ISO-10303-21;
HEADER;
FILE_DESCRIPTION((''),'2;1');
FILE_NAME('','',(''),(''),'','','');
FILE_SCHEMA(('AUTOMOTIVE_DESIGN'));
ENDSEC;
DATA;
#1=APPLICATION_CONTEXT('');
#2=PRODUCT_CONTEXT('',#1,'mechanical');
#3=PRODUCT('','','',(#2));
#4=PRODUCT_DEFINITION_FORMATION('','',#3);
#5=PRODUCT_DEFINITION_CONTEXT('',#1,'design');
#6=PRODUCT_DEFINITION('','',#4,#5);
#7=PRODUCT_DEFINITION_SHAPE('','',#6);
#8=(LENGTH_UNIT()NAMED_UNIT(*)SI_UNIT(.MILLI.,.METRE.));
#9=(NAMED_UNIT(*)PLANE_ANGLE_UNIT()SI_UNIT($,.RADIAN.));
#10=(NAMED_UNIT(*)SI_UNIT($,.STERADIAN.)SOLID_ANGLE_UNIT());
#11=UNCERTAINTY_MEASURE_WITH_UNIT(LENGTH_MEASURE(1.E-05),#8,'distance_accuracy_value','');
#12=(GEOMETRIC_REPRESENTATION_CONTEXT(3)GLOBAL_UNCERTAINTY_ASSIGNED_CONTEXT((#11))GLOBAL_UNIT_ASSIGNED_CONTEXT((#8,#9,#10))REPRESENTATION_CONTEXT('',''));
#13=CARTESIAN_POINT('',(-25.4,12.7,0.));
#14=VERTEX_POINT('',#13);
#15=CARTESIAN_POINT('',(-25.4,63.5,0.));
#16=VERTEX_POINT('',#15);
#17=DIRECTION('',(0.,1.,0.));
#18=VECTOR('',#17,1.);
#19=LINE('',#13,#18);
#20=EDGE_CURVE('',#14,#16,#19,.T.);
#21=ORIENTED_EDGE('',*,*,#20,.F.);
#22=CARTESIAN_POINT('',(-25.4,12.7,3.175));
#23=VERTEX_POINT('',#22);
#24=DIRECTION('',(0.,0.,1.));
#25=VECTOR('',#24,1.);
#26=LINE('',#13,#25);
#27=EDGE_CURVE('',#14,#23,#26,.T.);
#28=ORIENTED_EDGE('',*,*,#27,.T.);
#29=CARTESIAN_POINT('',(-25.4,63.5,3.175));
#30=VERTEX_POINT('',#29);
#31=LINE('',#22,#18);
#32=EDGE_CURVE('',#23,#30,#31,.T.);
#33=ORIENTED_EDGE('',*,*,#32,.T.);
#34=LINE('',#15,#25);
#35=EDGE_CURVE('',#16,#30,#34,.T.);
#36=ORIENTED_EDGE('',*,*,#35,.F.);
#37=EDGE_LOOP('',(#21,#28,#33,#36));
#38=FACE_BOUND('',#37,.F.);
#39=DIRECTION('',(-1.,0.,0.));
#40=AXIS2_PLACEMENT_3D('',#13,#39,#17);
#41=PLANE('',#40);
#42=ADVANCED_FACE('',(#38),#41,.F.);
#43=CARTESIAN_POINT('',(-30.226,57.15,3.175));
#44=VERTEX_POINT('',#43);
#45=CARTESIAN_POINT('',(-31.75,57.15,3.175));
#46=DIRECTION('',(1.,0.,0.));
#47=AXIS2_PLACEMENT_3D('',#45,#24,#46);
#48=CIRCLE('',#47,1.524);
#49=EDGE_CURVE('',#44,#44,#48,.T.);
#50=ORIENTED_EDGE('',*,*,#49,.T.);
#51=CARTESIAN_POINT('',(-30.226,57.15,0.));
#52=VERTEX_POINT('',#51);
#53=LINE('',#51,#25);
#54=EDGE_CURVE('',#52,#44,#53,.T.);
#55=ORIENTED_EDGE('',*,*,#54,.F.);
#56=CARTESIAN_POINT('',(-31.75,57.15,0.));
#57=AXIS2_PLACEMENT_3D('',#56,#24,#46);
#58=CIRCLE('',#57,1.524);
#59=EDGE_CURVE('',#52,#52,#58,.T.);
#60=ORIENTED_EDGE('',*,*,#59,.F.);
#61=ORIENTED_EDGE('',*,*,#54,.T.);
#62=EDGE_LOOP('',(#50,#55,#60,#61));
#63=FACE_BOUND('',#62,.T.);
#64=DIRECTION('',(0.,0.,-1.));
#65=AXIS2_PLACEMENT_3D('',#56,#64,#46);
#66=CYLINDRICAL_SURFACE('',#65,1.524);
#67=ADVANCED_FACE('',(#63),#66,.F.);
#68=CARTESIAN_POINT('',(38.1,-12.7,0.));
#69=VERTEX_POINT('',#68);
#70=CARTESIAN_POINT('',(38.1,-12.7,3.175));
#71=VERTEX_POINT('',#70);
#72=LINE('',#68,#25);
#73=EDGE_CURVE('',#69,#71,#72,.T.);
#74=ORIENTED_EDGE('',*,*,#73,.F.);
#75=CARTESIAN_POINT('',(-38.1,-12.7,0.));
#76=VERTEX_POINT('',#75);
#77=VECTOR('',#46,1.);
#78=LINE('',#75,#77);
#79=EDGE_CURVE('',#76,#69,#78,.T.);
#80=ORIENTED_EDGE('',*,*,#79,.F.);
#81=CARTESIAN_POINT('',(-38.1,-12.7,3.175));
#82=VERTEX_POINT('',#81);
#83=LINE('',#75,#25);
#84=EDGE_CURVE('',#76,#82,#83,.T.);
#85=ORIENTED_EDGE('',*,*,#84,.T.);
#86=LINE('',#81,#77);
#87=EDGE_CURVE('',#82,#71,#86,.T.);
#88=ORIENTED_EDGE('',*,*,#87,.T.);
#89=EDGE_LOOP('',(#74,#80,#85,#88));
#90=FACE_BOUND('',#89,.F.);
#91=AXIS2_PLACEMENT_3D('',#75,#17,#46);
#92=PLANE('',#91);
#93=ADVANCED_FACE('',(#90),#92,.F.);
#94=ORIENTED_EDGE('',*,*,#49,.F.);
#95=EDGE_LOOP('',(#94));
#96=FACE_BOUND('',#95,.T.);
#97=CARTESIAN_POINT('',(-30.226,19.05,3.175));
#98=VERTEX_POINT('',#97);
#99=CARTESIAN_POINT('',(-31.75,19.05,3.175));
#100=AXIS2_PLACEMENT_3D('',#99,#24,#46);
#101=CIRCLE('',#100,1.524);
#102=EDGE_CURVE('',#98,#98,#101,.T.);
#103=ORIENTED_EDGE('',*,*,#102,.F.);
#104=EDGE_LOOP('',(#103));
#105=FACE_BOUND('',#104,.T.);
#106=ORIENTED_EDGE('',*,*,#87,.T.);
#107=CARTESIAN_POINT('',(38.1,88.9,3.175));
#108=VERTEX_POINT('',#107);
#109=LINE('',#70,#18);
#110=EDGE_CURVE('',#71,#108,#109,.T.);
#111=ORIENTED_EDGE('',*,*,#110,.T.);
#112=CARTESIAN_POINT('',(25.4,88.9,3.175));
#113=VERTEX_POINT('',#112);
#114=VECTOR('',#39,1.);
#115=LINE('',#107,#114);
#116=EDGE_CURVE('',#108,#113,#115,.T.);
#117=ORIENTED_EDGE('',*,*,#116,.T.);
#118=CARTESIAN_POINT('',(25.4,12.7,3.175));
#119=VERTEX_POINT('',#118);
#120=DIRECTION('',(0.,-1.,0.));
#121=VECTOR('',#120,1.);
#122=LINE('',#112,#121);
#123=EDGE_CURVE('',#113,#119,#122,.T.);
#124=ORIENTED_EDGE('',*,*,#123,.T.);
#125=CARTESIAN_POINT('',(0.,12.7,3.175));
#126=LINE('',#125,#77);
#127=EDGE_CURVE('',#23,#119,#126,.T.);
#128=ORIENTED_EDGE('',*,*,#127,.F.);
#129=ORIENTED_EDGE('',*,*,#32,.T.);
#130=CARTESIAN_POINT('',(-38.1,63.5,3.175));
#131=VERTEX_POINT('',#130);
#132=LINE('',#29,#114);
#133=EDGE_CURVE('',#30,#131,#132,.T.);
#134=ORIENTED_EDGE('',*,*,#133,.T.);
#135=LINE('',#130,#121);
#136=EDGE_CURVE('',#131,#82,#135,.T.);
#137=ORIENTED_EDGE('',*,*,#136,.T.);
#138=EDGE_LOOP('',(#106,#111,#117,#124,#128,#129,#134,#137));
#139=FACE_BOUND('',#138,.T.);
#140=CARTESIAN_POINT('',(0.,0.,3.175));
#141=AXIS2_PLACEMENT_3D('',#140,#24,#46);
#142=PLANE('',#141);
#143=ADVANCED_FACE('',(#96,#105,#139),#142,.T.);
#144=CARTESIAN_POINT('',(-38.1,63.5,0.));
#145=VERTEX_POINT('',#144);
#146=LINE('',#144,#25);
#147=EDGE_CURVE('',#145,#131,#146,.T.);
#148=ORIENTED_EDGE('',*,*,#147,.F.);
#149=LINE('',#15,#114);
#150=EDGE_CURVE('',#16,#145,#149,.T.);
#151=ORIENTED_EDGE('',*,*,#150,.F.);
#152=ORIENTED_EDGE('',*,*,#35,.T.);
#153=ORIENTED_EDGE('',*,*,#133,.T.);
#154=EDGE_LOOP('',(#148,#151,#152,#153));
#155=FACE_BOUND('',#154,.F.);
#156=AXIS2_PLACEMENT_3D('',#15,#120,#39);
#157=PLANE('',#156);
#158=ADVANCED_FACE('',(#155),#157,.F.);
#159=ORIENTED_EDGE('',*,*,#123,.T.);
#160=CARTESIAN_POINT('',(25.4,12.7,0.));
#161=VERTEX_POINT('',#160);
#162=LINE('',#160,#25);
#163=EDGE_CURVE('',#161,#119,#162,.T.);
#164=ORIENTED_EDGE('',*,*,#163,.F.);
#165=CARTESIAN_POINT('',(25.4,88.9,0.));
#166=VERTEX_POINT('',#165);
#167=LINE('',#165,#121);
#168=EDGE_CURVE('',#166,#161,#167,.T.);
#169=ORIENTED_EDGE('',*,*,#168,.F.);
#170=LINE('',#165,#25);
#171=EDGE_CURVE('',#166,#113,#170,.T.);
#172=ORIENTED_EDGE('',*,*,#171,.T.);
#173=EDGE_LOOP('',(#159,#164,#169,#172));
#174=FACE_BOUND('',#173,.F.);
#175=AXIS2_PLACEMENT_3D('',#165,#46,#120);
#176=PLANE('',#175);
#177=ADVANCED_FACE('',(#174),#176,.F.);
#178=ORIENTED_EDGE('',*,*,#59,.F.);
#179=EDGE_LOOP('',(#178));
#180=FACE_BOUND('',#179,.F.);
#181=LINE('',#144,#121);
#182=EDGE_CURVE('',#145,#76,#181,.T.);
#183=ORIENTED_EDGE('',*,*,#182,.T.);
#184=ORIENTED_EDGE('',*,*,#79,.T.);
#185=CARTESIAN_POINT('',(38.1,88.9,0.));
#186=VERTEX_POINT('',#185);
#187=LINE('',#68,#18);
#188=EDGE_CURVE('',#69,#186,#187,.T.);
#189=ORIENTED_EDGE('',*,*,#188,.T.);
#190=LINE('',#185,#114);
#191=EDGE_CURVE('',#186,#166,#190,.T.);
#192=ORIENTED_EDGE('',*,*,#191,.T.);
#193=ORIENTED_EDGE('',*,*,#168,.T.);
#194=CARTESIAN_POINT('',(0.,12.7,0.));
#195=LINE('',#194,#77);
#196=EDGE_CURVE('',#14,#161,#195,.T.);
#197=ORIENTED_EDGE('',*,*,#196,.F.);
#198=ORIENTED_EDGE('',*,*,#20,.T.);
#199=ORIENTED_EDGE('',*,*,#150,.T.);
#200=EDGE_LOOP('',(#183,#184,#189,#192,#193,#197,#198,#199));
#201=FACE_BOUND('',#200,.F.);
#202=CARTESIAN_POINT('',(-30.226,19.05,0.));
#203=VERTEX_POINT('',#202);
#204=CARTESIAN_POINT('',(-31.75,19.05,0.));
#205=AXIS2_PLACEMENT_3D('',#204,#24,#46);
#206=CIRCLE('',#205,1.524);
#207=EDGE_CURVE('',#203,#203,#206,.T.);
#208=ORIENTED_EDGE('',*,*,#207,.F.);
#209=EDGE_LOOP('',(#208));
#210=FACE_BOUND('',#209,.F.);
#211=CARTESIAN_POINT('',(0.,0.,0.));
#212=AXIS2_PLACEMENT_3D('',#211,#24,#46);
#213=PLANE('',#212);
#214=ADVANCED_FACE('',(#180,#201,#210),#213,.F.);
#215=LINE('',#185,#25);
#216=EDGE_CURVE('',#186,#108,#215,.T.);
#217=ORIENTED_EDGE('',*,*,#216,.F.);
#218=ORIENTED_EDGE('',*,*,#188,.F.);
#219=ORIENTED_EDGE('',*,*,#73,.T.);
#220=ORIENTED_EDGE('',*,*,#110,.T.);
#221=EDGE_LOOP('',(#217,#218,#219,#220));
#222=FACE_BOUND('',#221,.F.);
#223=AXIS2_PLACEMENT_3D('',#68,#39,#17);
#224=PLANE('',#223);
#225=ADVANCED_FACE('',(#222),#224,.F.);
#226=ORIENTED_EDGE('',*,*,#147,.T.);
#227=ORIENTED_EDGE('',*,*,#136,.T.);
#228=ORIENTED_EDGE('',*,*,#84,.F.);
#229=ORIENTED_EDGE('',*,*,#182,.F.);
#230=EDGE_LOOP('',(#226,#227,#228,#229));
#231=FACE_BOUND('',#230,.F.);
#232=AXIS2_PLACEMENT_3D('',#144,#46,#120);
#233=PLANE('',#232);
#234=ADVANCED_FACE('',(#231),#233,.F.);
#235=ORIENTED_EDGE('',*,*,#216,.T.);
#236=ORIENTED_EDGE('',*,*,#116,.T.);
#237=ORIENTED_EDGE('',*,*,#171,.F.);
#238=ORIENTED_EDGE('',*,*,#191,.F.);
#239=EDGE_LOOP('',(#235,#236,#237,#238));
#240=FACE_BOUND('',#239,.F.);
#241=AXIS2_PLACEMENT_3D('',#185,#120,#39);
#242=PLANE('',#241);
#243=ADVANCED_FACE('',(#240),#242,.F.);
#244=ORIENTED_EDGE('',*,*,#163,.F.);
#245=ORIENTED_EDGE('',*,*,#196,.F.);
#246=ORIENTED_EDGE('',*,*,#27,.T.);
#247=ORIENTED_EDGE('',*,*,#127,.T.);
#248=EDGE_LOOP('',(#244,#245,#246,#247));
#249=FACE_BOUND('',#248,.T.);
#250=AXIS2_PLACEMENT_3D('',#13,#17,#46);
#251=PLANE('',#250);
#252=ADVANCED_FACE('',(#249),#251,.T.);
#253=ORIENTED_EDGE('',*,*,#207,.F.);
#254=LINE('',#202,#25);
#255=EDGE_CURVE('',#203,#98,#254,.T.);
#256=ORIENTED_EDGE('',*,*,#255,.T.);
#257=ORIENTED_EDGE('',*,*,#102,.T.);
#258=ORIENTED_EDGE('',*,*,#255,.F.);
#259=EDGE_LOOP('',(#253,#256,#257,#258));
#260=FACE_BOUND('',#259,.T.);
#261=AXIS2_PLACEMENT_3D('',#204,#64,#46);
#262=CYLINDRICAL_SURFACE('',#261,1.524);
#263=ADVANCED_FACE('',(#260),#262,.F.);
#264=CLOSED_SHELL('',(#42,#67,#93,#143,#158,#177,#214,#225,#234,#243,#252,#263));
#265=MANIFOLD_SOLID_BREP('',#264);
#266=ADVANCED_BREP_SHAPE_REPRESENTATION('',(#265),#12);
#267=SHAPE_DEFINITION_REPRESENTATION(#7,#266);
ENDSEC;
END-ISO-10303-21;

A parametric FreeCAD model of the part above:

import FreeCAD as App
import Part
import Sketcher

V = App.Vector
Q = App.Units.Quantity


def add_polygon(sketch, points):
    """Adds a closed chain of lines whose ends are joined by coincident constraints."""
    first, n = sketch.GeometryCount, len(points)
    for a, b in zip(points, points[1:] + points[:1]):
        sketch.addGeometry(Part.LineSegment(App.Vector(*a, 0), App.Vector(*b, 0)), False)
    for i in range(n):
        sketch.addConstraint(Sketcher.Constraint("Coincident", first + i, 2, first + (i + 1) % n, 1))

doc = App.newDocument("Part")
body = doc.addObject("PartDesign::Body", "Body")

sketch1 = body.newObject("Sketcher::SketchObject", "Sketch")
sketch1.AttachmentSupport = (doc.getObject("XY_Plane"), [""])
sketch1.MapMode = "FlatFace"
add_polygon(sketch1, [(-38.1, -12.7), (38.1, -12.7), (38.1, 88.9), (25.4, 88.9), (25.4, 12.7), (-25.4, 12.7), (-25.4, 63.5), (-38.1, 63.5)])
sketch1.addGeometry(Part.Circle(V(-31.8, 19.1, 0), V(0, 0, 1), 1.5), False)
sketch1.addGeometry(Part.Circle(V(-31.8, 57.1, 0), V(0, 0, 1), 1.5), False)
sketch1.addConstraint([
    Sketcher.Constraint("Horizontal", 0),
    Sketcher.Constraint("Vertical", 1),
    Sketcher.Constraint("Horizontal", 2),
    Sketcher.Constraint("Vertical", 3),
    Sketcher.Constraint("Horizontal", 4),
    Sketcher.Constraint("Vertical", 5),
    Sketcher.Constraint("Horizontal", 6),
    Sketcher.Constraint("Vertical", 7),
    Sketcher.Constraint("Equal", 8, 9),
    Sketcher.Constraint("Vertical", 8, 3, 9, 3),
    Sketcher.Constraint("Equal", 2, 6),
    Sketcher.Constraint("Equal", 0, 3),
    Sketcher.Constraint("Equal", 4, 5),
    Sketcher.Constraint("Equal", 3, 7),
    Sketcher.Constraint("Diameter", 8, Q("0.12 in")),
    Sketcher.Constraint("DistanceX", 0, 1, 0, 2, Q("3 in")),
    Sketcher.Constraint("DistanceX", 4, 2, 4, 1, Q("2 in")),
    Sketcher.Constraint("DistanceX", -1, 1, 2, 2, Q("1 in")),
    Sketcher.Constraint("DistanceY", 0, 2, -1, 1, Q("0.5 in")),
    Sketcher.Constraint("DistanceY", 8, 3, 9, 3, Q("1.5 in")),
    Sketcher.Constraint("DistanceX", 8, 3, -1, 1, Q("1.25 in")),
    Sketcher.Constraint("DistanceY", -1, 1, 8, 3, Q("0.75 in")),
])
pad1 = body.newObject("PartDesign::Pad", "Pad")
pad1.Profile = sketch1
pad1.Length = Q("0.125 in")

doc.recompute()
